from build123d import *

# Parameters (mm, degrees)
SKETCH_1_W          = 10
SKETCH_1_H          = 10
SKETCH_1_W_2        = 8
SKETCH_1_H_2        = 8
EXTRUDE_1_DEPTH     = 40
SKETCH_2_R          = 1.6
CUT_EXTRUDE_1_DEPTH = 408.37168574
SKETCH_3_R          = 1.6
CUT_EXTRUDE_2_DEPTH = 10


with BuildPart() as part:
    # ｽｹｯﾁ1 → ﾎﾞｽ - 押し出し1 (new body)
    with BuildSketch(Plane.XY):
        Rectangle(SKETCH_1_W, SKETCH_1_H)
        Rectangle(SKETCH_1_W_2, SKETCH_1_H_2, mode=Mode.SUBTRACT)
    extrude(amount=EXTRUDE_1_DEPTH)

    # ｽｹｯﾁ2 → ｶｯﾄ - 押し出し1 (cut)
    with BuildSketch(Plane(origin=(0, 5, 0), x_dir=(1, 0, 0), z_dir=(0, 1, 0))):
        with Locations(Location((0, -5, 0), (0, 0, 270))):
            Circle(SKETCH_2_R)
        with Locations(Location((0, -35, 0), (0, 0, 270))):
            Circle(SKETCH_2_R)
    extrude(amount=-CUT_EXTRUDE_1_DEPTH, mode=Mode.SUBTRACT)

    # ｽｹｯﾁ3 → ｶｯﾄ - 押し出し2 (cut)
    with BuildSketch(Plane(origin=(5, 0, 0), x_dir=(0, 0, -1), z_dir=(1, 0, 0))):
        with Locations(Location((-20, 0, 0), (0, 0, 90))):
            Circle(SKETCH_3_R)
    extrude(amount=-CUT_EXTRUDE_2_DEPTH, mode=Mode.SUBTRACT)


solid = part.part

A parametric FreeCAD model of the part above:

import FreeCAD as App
import Part
import Sketcher
from FreeCAD import Vector

doc = App.newDocument("Part")
body = doc.addObject("PartDesign::Body", "Body")

sketch1 = doc.addObject("Sketcher::SketchObject", "Sketch")
body.addObject(sketch1)
sketch1.AttachmentSupport = (doc.XY_Plane, [""])
sketch1.MapMode = "FlatFace"
sketch1.addGeometry([
    Part.LineSegment(Vector(-5, 5, 0), Vector(-5, -5, 0)),
    Part.LineSegment(Vector(-5, -5, 0), Vector(5, -5, 0)),
    Part.LineSegment(Vector(5, -5, 0), Vector(5, 5, 0)),
    Part.LineSegment(Vector(5, 5, 0), Vector(-5, 5, 0)),
    Part.LineSegment(Vector(4, -4, 0), Vector(-4, -4, 0)),
    Part.LineSegment(Vector(-4, -4, 0), Vector(-4, 4, 0)),
    Part.LineSegment(Vector(-4, 4, 0), Vector(4, 4, 0)),
    Part.LineSegment(Vector(4, 4, 0), Vector(4, -4, 0)),
], False)
sketch1.addConstraint([
    Sketcher.Constraint("Coincident", 0, 2, 1, 1),
    Sketcher.Constraint("Coincident", 1, 2, 2, 1),
    Sketcher.Constraint("Coincident", 2, 2, 3, 1),
    Sketcher.Constraint("Coincident", 3, 2, 0, 1),
    Sketcher.Constraint("Coincident", 4, 2, 5, 1),
    Sketcher.Constraint("Coincident", 5, 2, 6, 1),
    Sketcher.Constraint("Coincident", 6, 2, 7, 1),
    Sketcher.Constraint("Coincident", 7, 2, 4, 1),
    Sketcher.Constraint("Vertical", 0),
    Sketcher.Constraint("Horizontal", 1),
    Sketcher.Constraint("Vertical", 2),
    Sketcher.Constraint("Horizontal", 3),
    Sketcher.Constraint("Horizontal", 4),
    Sketcher.Constraint("Vertical", 5),
    Sketcher.Constraint("Horizontal", 6),
    Sketcher.Constraint("Vertical", 7),
    Sketcher.Constraint("Symmetric", 0, 2, 2, 2, -1, 1),
    Sketcher.Constraint("Symmetric", 4, 2, 6, 2, -1, 1),
    Sketcher.Constraint("Equal", 3, 0),
    Sketcher.Constraint("Equal", 6, 5),
    Sketcher.Constraint("DistanceX", 1, 1, 1, 2, 10.0),
    Sketcher.Constraint("DistanceX", 4, 2, 4, 1, 8.0),
])
pad1 = doc.addObject("PartDesign::Pad", "Pad")
body.addObject(pad1)
pad1.Profile = sketch1
pad1.Length = 40

sketch2 = doc.addObject("Sketcher::SketchObject", "Sketch001")
body.addObject(sketch2)
sketch2.AttachmentSupport = (doc.XZ_Plane, [""])
sketch2.MapMode = "FlatFace"
sketch2.AttachmentOffset = App.Placement(Vector(0, 0, -5), App.Rotation())
sketch2.addGeometry([
    Part.Circle(Vector(0, 5, 0), Vector(0, 0, 1), 1.6),
    Part.Circle(Vector(0, 35, 0), Vector(0, 0, 1), 1.6),
], False)
sketch2.addConstraint([
    Sketcher.Constraint("Equal", 0, 1),
    Sketcher.Constraint("PointOnObject", 0, 3, -2),
    Sketcher.Constraint("PointOnObject", 1, 3, -2),
    Sketcher.Constraint("Diameter", 0, 3.2),
    Sketcher.Constraint("DistanceY", -1, 1, 0, 3, 5.0),
    Sketcher.Constraint("DistanceY", -1, 1, 1, 3, 35.0),
])
pocket1 = doc.addObject("PartDesign::Pocket", "Pocket")
body.addObject(pocket1)
pocket1.Profile = sketch2
pocket1.Length = 408.371686
pocket1.Reversed = True

sketch3 = doc.addObject("Sketcher::SketchObject", "Sketch002")
body.addObject(sketch3)
sketch3.AttachmentSupport = (doc.YZ_Plane, [""])
sketch3.MapMode = "FlatFace"
sketch3.AttachmentOffset = App.Placement(Vector(0, 0, 5), App.Rotation())
sketch3.addGeometry(Part.Circle(Vector(0, 20, 0), Vector(0, 0, 1), 1.6), False)
sketch3.addConstraint([
    Sketcher.Constraint("PointOnObject", 0, 3, -2),
    Sketcher.Constraint("Diameter", 0, 3.2),
    Sketcher.Constraint("DistanceY", -1, 1, 0, 3, 20.0),
])
pocket2 = doc.addObject("PartDesign::Pocket", "Pocket001")
body.addObject(pocket2)
pocket2.Profile = sketch3
pocket2.Length = 10

doc.recompute()
